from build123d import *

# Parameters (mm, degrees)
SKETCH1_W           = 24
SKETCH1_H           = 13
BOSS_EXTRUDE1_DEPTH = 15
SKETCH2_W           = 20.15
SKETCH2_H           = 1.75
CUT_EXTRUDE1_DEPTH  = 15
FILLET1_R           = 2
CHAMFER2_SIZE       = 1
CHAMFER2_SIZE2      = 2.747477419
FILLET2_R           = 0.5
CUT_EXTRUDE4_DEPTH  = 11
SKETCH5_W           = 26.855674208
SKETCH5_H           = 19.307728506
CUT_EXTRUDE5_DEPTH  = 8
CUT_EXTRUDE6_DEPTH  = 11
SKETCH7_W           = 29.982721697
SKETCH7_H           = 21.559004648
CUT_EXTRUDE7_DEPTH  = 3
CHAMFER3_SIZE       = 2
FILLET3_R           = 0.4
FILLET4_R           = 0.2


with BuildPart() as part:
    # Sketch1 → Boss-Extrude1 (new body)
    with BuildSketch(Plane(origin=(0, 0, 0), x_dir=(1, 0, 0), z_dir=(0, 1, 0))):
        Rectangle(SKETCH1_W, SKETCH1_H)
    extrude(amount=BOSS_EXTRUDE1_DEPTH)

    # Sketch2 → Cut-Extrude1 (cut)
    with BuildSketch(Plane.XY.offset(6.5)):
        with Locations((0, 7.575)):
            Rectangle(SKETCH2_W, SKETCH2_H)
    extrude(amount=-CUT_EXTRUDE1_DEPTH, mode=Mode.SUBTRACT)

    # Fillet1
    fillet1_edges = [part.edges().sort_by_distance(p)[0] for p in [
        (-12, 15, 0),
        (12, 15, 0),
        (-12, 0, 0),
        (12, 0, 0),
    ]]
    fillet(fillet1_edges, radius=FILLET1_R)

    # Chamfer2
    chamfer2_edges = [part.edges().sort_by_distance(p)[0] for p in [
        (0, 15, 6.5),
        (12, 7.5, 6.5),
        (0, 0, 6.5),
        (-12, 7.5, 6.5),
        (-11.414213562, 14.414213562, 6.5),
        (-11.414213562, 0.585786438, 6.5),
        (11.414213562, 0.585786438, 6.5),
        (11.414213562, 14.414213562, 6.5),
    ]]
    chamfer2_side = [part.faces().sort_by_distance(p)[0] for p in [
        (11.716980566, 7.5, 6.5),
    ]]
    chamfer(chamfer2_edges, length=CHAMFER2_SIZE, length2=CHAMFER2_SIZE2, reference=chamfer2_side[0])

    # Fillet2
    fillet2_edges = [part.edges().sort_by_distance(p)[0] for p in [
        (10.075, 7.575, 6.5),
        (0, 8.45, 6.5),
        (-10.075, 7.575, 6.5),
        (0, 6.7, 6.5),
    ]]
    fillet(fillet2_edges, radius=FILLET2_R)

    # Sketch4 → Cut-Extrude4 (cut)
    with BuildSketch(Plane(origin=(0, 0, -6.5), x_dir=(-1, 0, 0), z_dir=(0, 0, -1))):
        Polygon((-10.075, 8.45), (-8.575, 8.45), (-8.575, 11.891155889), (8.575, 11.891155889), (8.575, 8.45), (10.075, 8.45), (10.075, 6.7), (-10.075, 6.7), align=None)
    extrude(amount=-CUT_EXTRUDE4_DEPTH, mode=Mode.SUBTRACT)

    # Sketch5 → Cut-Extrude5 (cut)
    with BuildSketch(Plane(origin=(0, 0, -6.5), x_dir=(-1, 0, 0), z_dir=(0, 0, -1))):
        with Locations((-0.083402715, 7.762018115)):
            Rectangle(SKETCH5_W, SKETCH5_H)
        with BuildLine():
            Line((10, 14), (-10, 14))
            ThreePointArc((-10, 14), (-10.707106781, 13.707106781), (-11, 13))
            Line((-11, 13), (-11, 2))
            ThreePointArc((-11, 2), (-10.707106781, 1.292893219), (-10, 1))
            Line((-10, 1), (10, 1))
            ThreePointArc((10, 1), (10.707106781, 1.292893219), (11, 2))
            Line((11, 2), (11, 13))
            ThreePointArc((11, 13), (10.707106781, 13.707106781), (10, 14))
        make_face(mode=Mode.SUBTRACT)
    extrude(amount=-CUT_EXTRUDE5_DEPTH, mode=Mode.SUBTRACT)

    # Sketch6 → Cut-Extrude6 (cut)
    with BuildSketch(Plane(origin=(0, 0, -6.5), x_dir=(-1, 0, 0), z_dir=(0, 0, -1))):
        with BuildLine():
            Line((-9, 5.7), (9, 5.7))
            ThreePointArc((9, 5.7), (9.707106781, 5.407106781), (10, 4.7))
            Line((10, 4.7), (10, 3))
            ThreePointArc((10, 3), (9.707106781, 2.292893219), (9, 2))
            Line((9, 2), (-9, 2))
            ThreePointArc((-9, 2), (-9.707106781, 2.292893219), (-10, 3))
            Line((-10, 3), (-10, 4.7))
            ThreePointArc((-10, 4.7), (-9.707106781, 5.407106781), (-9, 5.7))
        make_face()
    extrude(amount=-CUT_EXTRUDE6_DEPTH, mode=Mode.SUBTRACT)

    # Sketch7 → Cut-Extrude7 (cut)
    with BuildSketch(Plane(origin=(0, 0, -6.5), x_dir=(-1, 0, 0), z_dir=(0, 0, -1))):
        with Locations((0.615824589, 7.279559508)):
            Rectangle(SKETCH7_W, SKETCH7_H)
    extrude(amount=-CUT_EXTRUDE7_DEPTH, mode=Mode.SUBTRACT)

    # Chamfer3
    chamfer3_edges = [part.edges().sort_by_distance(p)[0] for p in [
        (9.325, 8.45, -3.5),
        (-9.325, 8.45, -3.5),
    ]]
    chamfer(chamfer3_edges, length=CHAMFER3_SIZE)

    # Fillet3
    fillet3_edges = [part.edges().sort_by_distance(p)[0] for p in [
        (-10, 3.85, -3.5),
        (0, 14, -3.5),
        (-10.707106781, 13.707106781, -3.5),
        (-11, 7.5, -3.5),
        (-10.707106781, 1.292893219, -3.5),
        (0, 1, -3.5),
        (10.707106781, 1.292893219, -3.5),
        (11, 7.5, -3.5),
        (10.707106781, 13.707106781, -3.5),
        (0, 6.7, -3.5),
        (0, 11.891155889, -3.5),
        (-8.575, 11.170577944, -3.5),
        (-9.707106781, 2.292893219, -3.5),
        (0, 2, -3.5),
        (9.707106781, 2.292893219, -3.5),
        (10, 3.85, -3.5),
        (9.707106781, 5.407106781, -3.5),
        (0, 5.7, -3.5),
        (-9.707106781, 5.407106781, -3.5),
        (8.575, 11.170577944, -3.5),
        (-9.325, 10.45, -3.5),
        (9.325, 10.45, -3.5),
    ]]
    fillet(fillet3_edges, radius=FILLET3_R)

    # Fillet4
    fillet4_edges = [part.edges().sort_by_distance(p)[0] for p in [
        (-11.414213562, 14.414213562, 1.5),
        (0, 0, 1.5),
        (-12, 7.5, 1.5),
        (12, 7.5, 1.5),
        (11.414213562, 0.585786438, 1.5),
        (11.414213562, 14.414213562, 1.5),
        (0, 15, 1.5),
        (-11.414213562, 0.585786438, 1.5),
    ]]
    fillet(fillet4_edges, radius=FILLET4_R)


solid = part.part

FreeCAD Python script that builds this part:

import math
import FreeCAD as App
import Part
import Sketcher
Q = App.Units.Quantity


def edges_at(feature, points):
    """Names of the edges that pass closest to the given points."""
    edges = feature.Shape.Edges
    near = lambda p: min(range(len(edges)), key=lambda i: edges[i].distToShape(Part.Vertex(*p))[0])
    return sorted({f"Edge{near(p) + 1}" for p in points})


def add_polygon(sketch, points):
    """Adds a closed chain of lines whose ends are joined by coincident constraints."""
    first, n = sketch.GeometryCount, len(points)
    for a, b in zip(points, points[1:] + points[:1]):
        sketch.addGeometry(Part.LineSegment(App.Vector(*a, 0), App.Vector(*b, 0)), False)
    for i in range(n):
        sketch.addConstraint(Sketcher.Constraint("Coincident", first + i, 2, first + (i + 1) % n, 1))

doc = App.newDocument("Part")
params = doc.addObject("Spreadsheet::Sheet", "Params")
for row, (alias, value) in enumerate([
    ("sketch1_width", "24 mm"),
    ("sketch1_height", "13 mm"),
    ("pad1_length", "15 mm"),
    ("sketch2_width", "20.15 mm"),
    ("sketch2_height", "1.75 mm"),
    ("pocket1_length", "15 mm"),
    ("fillet_radius", "2 mm"),
    ("chamfer_size", "1 mm"),
    ("chamfer_size2", "2.747477 mm"),
    ("fillet2_radius", "0.5 mm"),
    ("sketch3_width", "1.5 mm"),
    ("sketch3_width2", "20.15 mm"),
    ("sketch3_height", "1.75 mm"),
    ("pocket2_length", "11 mm"),
    ("sketch4_radius", "1 mm"),
    ("sketch4_width", "20 mm"),
    ("sketch4_height", "11 mm"),
    ("pocket3_length", "8 mm"),
    ("sketch5_radius", "1 mm"),
    ("sketch5_width", "18 mm"),
    ("sketch5_height", "1.7 mm"),
    ("pocket4_length", "11 mm"),
    ("pocket5_length", "3 mm"),
    ("chamfer2_size", "2 mm"),
    ("fillet3_radius", "0.4 mm"),
    ("fillet4_radius", "0.2 mm"),
], start=1):
    params.set(f"A{row}", alias)
    params.set(f"B{row}", "=" + value)
    params.setAlias(f"B{row}", alias)

body = doc.addObject("PartDesign::Body", "Body")

# Sketch on XZ plane
sketch1 = body.newObject("Sketcher::SketchObject", "Sketch")
sketch1.AttachmentSupport = (doc.getObject("XZ_Plane"), [""])
sketch1.MapMode = "FlatFace"
add_polygon(sketch1, [(-12, -6), (-12, 6), (12, 6), (12, -6)])  # lines 0-3
sketch1.addConstraint([
    Sketcher.Constraint("Vertical", 0),
    Sketcher.Constraint("Horizontal", 1),
    Sketcher.Constraint("Vertical", 2),
    Sketcher.Constraint("Horizontal", 3),
    Sketcher.Constraint("Symmetric", 0, 2, 2, 2, -1, 1),
    Sketcher.Constraint("DistanceX", 1, 1, 1, 2, Q("24 mm")),
    Sketcher.Constraint("DistanceY", 0, 1, 0, 2, Q("13 mm")),
])
sketch1.setExpression("Constraints[9]", "Params.sketch1_width")
sketch1.setExpression("Constraints[10]", "Params.sketch1_height")
pad1 = body.newObject("PartDesign::Pad", "Pad")
pad1.Profile = sketch1
pad1.setExpression("Length", "Params.pad1_length")
pad1.Reversed = True

# Sketch on XY plane
sketch2 = body.newObject("Sketcher::SketchObject", "Sketch001")
sketch2.AttachmentSupport = (doc.getObject("XY_Plane"), [""])
sketch2.MapMode = "FlatFace"
sketch2.AttachmentOffset = App.Placement(App.Vector(0, 0, 6.5), App.Rotation())
add_polygon(sketch2, [(-10.1, 8.4), (-10.1, 6.7), (10.1, 6.7), (10.1, 8.4)])  # lines 0-3
sketch2.addConstraint([
    Sketcher.Constraint("Vertical", 0),
    Sketcher.Constraint("Horizontal", 1),
    Sketcher.Constraint("Vertical", 2),
    Sketcher.Constraint("Horizontal", 3),
    Sketcher.Constraint("DistanceX", 1, 1, 1, 2, Q("20.15 mm")),
    Sketcher.Constraint("DistanceY", 0, 2, 0, 1, Q("1.75 mm")),
    Sketcher.Constraint("DistanceY", -1, 1, 0, 2, Q("6.7 mm")),
    Sketcher.Constraint("DistanceX", 0, 2, -1, 1, Q("10.075 mm")),
])
sketch2.setExpression("Constraints[8]", "Params.sketch2_width")
sketch2.setExpression("Constraints[9]", "Params.sketch2_height")
pocket1 = body.newObject("PartDesign::Pocket", "Pocket")
pocket1.Profile = sketch2
pocket1.setExpression("Length", "Params.pocket1_length")
doc.recompute()

fillet = body.newObject("PartDesign::Fillet", "Fillet")
fillet.Base = (pocket1, edges_at(pocket1, [
    (-12, 15, 0),
    (12, 15, 0),
    (-12, 0, 0),
    (12, 0, 0),
]))
fillet.setExpression("Radius", "Params.fillet_radius")
doc.recompute()

chamfer = body.newObject("PartDesign::Chamfer", "Chamfer")
chamfer.Base = (fillet, edges_at(fillet, [
    (0, 15, 6.5),
    (12, 7.5, 6.5),
    (0, 0, 6.5),
    (-12, 7.5, 6.5),
    (-11.414, 14.414, 6.5),
    (-11.414, 0.586, 6.5),
    (11.414, 0.586, 6.5),
    (11.414, 14.414, 6.5),
]))
chamfer.ChamferType = "Two distances"
chamfer.setExpression("Size", "Params.chamfer_size")
chamfer.setExpression("Size2", "Params.chamfer_size2")
chamfer.FlipDirection = True
doc.recompute()

fillet2 = body.newObject("PartDesign::Fillet", "Fillet001")
fillet2.Base = (chamfer, edges_at(chamfer, [
    (10.075, 7.575, 6.5),
    (0, 8.45, 6.5),
    (-10.075, 7.575, 6.5),
    (0, 6.7, 6.5),
]))
fillet2.setExpression("Radius", "Params.fillet2_radius")

# Sketch on XY plane
sketch3 = body.newObject("Sketcher::SketchObject", "Sketch002")
sketch3.AttachmentSupport = (doc.getObject("XY_Plane"), [""])
sketch3.MapMode = "FlatFace"
sketch3.AttachmentOffset = App.Placement(App.Vector(0, 0, -6.5), App.Rotation())
add_polygon(sketch3, [(8.6, 8.4), (10.1, 8.4), (10.1, 6.7), (-10.1, 6.7), (-10.1, 8.4), (-8.6, 8.4), (-8.6, 11.9), (8.6, 11.9)])  # lines 0-7
sketch3.addConstraint([
    Sketcher.Constraint("Horizontal", 0),
    Sketcher.Constraint("Vertical", 1),
    Sketcher.Constraint("Horizontal", 2),
    Sketcher.Constraint("Vertical", 3),
    Sketcher.Constraint("Horizontal", 4),
    Sketcher.Constraint("Vertical", 5),
    Sketcher.Constraint("Horizontal", 6),
    Sketcher.Constraint("Vertical", 7),
    Sketcher.Constraint("Symmetric", 0, 2, 3, 2, -2),
    Sketcher.Constraint("Equal", 0, 4),
    Sketcher.Constraint("DistanceX", 0, 1, 0, 2, Q("1.5 mm")),
    Sketcher.Constraint("DistanceX", 2, 2, 2, 1, Q("20.15 mm")),
    Sketcher.Constraint("DistanceY", 1, 2, 1, 1, Q("1.75 mm")),
    Sketcher.Constraint("DistanceY", -1, 1, 1, 2, Q("6.7 mm")),
    Sketcher.Constraint("DistanceY", 5, 1, 5, 2, Q("3.441156 mm")),
])
sketch3.setExpression("Constraints[18]", "Params.sketch3_width")
sketch3.setExpression("Constraints[19]", "Params.sketch3_width2")
sketch3.setExpression("Constraints[20]", "Params.sketch3_height")
pocket2 = body.newObject("PartDesign::Pocket", "Pocket001")
pocket2.Profile = sketch3
pocket2.setExpression("Length", "Params.pocket2_length")
pocket2.Reversed = True

# Sketch on XY plane
sketch4 = body.newObject("Sketcher::SketchObject", "Sketch003")
sketch4.AttachmentSupport = (doc.getObject("XY_Plane"), [""])
sketch4.MapMode = "FlatFace"
sketch4.AttachmentOffset = App.Placement(App.Vector(0, 0, -6.5), App.Rotation())
add_polygon(sketch4, [(13.5, 17.4), (13.5, -1.9), (-13.3, -1.9), (-13.3, 17.4)])  # lines 0-3
sketch4.addGeometry(Part.LineSegment(App.Vector(10, 14, 0), App.Vector(-10, 14, 0)), False)  # 4
sketch4.addGeometry(Part.ArcOfCircle(Part.Circle(App.Vector(-10, 13, 0), App.Vector(0, 0, 1), 1), math.radians(90), math.radians(180)), False)  # 5
sketch4.addGeometry(Part.LineSegment(App.Vector(-11, 13, 0), App.Vector(-11, 2, 0)), False)  # 6
sketch4.addGeometry(Part.ArcOfCircle(Part.Circle(App.Vector(-10, 2, 0), App.Vector(0, 0, 1), 1), math.radians(-180), math.radians(-90)), False)  # 7
sketch4.addGeometry(Part.LineSegment(App.Vector(-10, 1, 0), App.Vector(10, 1, 0)), False)  # 8
sketch4.addGeometry(Part.ArcOfCircle(Part.Circle(App.Vector(10, 2, 0), App.Vector(0, 0, 1), 1), math.radians(-90), math.radians(0)), False)  # 9
sketch4.addGeometry(Part.LineSegment(App.Vector(11, 2, 0), App.Vector(11, 13, 0)), False)  # 10
sketch4.addGeometry(Part.ArcOfCircle(Part.Circle(App.Vector(10, 13, 0), App.Vector(0, 0, 1), 1), math.radians(0), math.radians(90)), False)  # 11
sketch4.addConstraint([
    Sketcher.Constraint("Tangent", 4, 2, 5, 1),
    Sketcher.Constraint("Tangent", 5, 2, 6, 1),
    Sketcher.Constraint("Tangent", 6, 2, 7, 1),
    Sketcher.Constraint("Tangent", 7, 2, 8, 1),
    Sketcher.Constraint("Tangent", 8, 2, 9, 1),
    Sketcher.Constraint("Tangent", 9, 2, 10, 1),
    Sketcher.Constraint("Tangent", 10, 2, 11, 1),
    Sketcher.Constraint("Tangent", 11, 2, 4, 1),
    Sketcher.Constraint("Vertical", 0),
    Sketcher.Constraint("Horizontal", 1),
    Sketcher.Constraint("Vertical", 2),
    Sketcher.Constraint("Horizontal", 3),
    Sketcher.Constraint("Horizontal", 4),
    Sketcher.Constraint("Vertical", 6),
    Sketcher.Constraint("Horizontal", 8),
    Sketcher.Constraint("Vertical", 10),
    Sketcher.Constraint("Equal", 5, 7),
    Sketcher.Constraint("Equal", 7, 9),
    Sketcher.Constraint("Equal", 9, 11),
    Sketcher.Constraint("Radius", 5, Q("1 mm")),
    Sketcher.Constraint("DistanceX", 4, 2, 4, 1, Q("20 mm")),
    Sketcher.Constraint("DistanceY", 6, 2, 6, 1, Q("11 mm")),
    Sketcher.Constraint("DistanceX", 5, 3, -1, 1, Q("10 mm")),
    Sketcher.Constraint("DistanceY", -1, 1, 5, 3, Q("13 mm")),
    Sketcher.Constraint("DistanceY", 0, 2, 0, 1, Q("19.307729 mm")),
    Sketcher.Constraint("DistanceX", 1, 2, 1, 1, Q("26.855674 mm")),
    Sketcher.Constraint("DistanceX", -1, 1, 0, 2, Q("13.51124 mm")),
    Sketcher.Constraint("DistanceY", 0, 2, -1, 1, Q("1.891846 mm")),
])
sketch4.setExpression("Constraints[23]", "Params.sketch4_radius")
sketch4.setExpression("Constraints[24]", "Params.sketch4_width")
sketch4.setExpression("Constraints[25]", "Params.sketch4_height")
pocket3 = body.newObject("PartDesign::Pocket", "Pocket002")
pocket3.Profile = sketch4
pocket3.setExpression("Length", "Params.pocket3_length")
pocket3.Reversed = True

# Sketch on XY plane
sketch5 = body.newObject("Sketcher::SketchObject", "Sketch004")
sketch5.AttachmentSupport = (doc.getObject("XY_Plane"), [""])
sketch5.MapMode = "FlatFace"
sketch5.AttachmentOffset = App.Placement(App.Vector(0, 0, -6.5), App.Rotation())
sketch5.addGeometry([
    Part.LineSegment(App.Vector(-9, 5.7, 0), App.Vector(9, 5.7, 0)),  # 0
    Part.ArcOfCircle(Part.Circle(App.Vector(9, 4.7, 0), App.Vector(0, 0, 1), 1), math.radians(0), math.radians(90)),  # 1
    Part.LineSegment(App.Vector(10, 4.7, 0), App.Vector(10, 3, 0)),  # 2
    Part.ArcOfCircle(Part.Circle(App.Vector(9, 3, 0), App.Vector(0, 0, 1), 1), math.radians(-90), math.radians(0)),  # 3
    Part.LineSegment(App.Vector(9, 2, 0), App.Vector(-9, 2, 0)),  # 4
    Part.ArcOfCircle(Part.Circle(App.Vector(-9, 3, 0), App.Vector(0, 0, 1), 1), math.radians(-180), math.radians(-90)),  # 5
    Part.LineSegment(App.Vector(-10, 3, 0), App.Vector(-10, 4.7, 0)),  # 6
    Part.ArcOfCircle(Part.Circle(App.Vector(-9, 4.7, 0), App.Vector(0, 0, 1), 1), math.radians(90), math.radians(180)),  # 7
], False)
sketch5.addConstraint([
    Sketcher.Constraint("Tangent", 0, 2, 1, 2),
    Sketcher.Constraint("Tangent", 1, 1, 2, 1),
    Sketcher.Constraint("Tangent", 2, 2, 3, 2),
    Sketcher.Constraint("Tangent", 3, 1, 4, 1),
    Sketcher.Constraint("Tangent", 4, 2, 5, 2),
    Sketcher.Constraint("Tangent", 5, 1, 6, 1),
    Sketcher.Constraint("Tangent", 6, 2, 7, 2),
    Sketcher.Constraint("Tangent", 7, 1, 0, 1),
    Sketcher.Constraint("Horizontal", 0),
    Sketcher.Constraint("Vertical", 2),
    Sketcher.Constraint("Horizontal", 4),
    Sketcher.Constraint("Vertical", 6),
    Sketcher.Constraint("Equal", 1, 3),
    Sketcher.Constraint("Equal", 3, 5),
    Sketcher.Constraint("Equal", 5, 7),
    Sketcher.Constraint("Radius", 1, Q("1 mm")),
    Sketcher.Constraint("DistanceX", 0, 1, 0, 2, Q("18 mm")),
    Sketcher.Constraint("DistanceY", 2, 2, 2, 1, Q("1.7 mm")),
    Sketcher.Constraint("DistanceX", -1, 1, 1, 3, Q("9 mm")),
    Sketcher.Constraint("DistanceY", -1, 1, 3, 3, Q("3 mm")),
])
sketch5.setExpression("Constraints[15]", "Params.sketch5_radius")
sketch5.setExpression("Constraints[16]", "Params.sketch5_width")
sketch5.setExpression("Constraints[17]", "Params.sketch5_height")
pocket4 = body.newObject("PartDesign::Pocket", "Pocket003")
pocket4.Profile = sketch5
pocket4.setExpression("Length", "Params.pocket4_length")
pocket4.Reversed = True

# Sketch on XY plane
sketch6 = body.newObject("Sketcher::SketchObject", "Sketch005")
sketch6.AttachmentSupport = (doc.getObject("XY_Plane"), [""])
sketch6.MapMode = "FlatFace"
sketch6.AttachmentOffset = App.Placement(App.Vector(0, 0, -6.5), App.Rotation())
add_polygon(sketch6, [(14, 18), (14, -3), (-16, -3), (-16, 18)])  # lines 0-3
sketch6.addConstraint([
    Sketcher.Constraint("Vertical", 0),
    Sketcher.Constraint("Horizontal", 1),
    Sketcher.Constraint("Vertical", 2),
    Sketcher.Constraint("Horizontal", 3),
    Sketcher.Constraint("DistanceX", 1, 2, 1, 1, Q("29.982722 mm")),
    Sketcher.Constraint("DistanceY", 0, 2, 0, 1, Q("21.559005 mm")),
    Sketcher.Constraint("DistanceY", -1, 1, 2, 2, Q("18.059062 mm")),
    Sketcher.Constraint("DistanceX", -1, 1, 0, 2, Q("14.375536 mm")),
])
pocket5 = body.newObject("PartDesign::Pocket", "Pocket004")
pocket5.Profile = sketch6
pocket5.setExpression("Length", "Params.pocket5_length")
pocket5.Reversed = True
doc.recompute()

chamfer2 = body.newObject("PartDesign::Chamfer", "Chamfer001")
chamfer2.Base = (pocket5, edges_at(pocket5, [(9.325, 8.45, -3.5), (-9.325, 8.45, -3.5)]))
chamfer2.setExpression("Size", "Params.chamfer2_size")
doc.recompute()

fillet3 = body.newObject("PartDesign::Fillet", "Fillet002")
fillet3.Base = (chamfer2, edges_at(chamfer2, [
    (-10, 3.85, -3.5),
    (0, 14, -3.5),
    (-10.707, 13.707, -3.5),
    (-11, 7.5, -3.5),
    (-10.707, 1.293, -3.5),
    (0, 1, -3.5),
    (10.707, 1.293, -3.5),
    (11, 7.5, -3.5),
    (10.707, 13.707, -3.5),
    (0, 6.7, -3.5),
    (0, 11.891, -3.5),
    (-8.575, 11.171, -3.5),
    (-9.707, 2.293, -3.5),
    (0, 2, -3.5),
    (9.707, 2.293, -3.5),
    (10, 3.85, -3.5),
    (9.707, 5.407, -3.5),
    (0, 5.7, -3.5),
    (-9.707, 5.407, -3.5),
    (8.575, 11.171, -3.5),
    (-9.325, 10.45, -3.5),
    (9.325, 10.45, -3.5),
]))
fillet3.setExpression("Radius", "Params.fillet3_radius")
doc.recompute()

fillet4 = body.newObject("PartDesign::Fillet", "Fillet003")
fillet4.Base = (fillet3, edges_at(fillet3, [
    (-11.414, 14.414, 1.5),
    (0, 0, 1.5),
    (-12, 7.5, 1.5),
    (12, 7.5, 1.5),
    (11.414, 0.586, 1.5),
    (11.414, 14.414, 1.5),
    (0, 15, 1.5),
    (-11.414, 0.586, 1.5),
]))
fillet4.setExpression("Radius", "Params.fillet4_radius")

doc.recompute()
